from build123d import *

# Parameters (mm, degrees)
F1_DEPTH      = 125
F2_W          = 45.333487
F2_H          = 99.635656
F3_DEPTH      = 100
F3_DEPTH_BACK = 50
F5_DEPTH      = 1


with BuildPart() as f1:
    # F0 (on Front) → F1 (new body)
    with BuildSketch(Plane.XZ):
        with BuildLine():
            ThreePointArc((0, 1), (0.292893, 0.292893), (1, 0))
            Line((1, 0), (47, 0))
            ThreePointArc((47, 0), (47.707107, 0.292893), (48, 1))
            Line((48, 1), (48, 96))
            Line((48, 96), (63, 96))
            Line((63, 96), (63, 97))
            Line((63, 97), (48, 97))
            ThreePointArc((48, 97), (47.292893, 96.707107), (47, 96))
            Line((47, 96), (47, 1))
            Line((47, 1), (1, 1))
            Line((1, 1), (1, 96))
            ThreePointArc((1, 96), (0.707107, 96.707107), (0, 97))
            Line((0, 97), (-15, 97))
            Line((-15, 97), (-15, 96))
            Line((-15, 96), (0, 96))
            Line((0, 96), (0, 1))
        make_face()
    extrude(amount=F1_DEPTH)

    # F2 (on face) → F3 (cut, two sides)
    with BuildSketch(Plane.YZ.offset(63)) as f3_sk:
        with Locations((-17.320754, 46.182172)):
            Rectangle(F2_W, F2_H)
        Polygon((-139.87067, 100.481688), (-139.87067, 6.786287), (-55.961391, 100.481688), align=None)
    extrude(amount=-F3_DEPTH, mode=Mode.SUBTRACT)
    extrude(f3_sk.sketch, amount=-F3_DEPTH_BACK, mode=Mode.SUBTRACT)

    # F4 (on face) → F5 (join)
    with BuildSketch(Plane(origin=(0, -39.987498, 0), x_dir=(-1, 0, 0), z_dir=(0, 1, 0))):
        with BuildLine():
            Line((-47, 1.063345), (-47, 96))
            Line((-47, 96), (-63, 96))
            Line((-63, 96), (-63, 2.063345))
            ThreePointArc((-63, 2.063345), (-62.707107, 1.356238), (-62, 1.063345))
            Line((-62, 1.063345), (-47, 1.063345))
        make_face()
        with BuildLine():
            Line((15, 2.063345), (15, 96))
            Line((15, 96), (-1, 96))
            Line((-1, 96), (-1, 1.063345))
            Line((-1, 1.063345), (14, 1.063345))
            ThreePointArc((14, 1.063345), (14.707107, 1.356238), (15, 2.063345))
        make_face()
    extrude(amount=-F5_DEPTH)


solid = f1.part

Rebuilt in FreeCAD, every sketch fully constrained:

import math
import FreeCAD as App
import Part
import Sketcher
from FreeCAD import Vector

doc = App.newDocument("Part")
body = doc.addObject("PartDesign::Body", "Body")

sketch1 = body.newObject("Sketcher::SketchObject", "Sketch")
sketch1.AttachmentSupport = (doc.getObject("XZ_Plane"), [""])
sketch1.MapMode = "FlatFace"
sketch1.addGeometry(Part.ArcOfCircle(Part.Circle(Vector(1, 1, 0), Vector(0, 0, 1), 1), math.radians(180), math.radians(270)), False)
sketch1.addGeometry(Part.LineSegment(Vector(1, 0, 0), Vector(47, 0, 0)), False)
sketch1.addGeometry(Part.ArcOfCircle(Part.Circle(Vector(47, 1, 0), Vector(0, 0, 1), 1), math.radians(-90), math.radians(0)), False)
sketch1.addGeometry(Part.LineSegment(Vector(48, 1, 0), Vector(48, 96, 0)), False)
sketch1.addGeometry(Part.LineSegment(Vector(48, 96, 0), Vector(63, 96, 0)), False)
sketch1.addGeometry(Part.LineSegment(Vector(63, 96, 0), Vector(63, 97, 0)), False)
sketch1.addGeometry(Part.LineSegment(Vector(63, 97, 0), Vector(48, 97, 0)), False)
sketch1.addGeometry(Part.ArcOfCircle(Part.Circle(Vector(48, 96, 0), Vector(0, 0, 1), 1), math.radians(90), math.radians(180)), False)
sketch1.addGeometry(Part.LineSegment(Vector(47, 96, 0), Vector(47, 1, 0)), False)
sketch1.addGeometry(Part.LineSegment(Vector(47, 1, 0), Vector(1, 1, 0)), False)
sketch1.addGeometry(Part.LineSegment(Vector(1, 1, 0), Vector(1, 96, 0)), False)
sketch1.addGeometry(Part.ArcOfCircle(Part.Circle(Vector(0, 96, 0), Vector(0, 0, 1), 1), math.radians(0), math.radians(90)), False)
sketch1.addGeometry(Part.LineSegment(Vector(0, 97, 0), Vector(-15, 97, 0)), False)
sketch1.addGeometry(Part.LineSegment(Vector(-15, 97, 0), Vector(-15, 96, 0)), False)
sketch1.addGeometry(Part.LineSegment(Vector(-15, 96, 0), Vector(0, 96, 0)), False)
sketch1.addGeometry(Part.LineSegment(Vector(0, 96, 0), Vector(0, 1, 0)), False)
sketch1.addConstraint(Sketcher.Constraint("Tangent", 0, 2, 1, 1))
sketch1.addConstraint(Sketcher.Constraint("Tangent", 1, 2, 2, 1))
sketch1.addConstraint(Sketcher.Constraint("Tangent", 2, 2, 3, 1))
sketch1.addConstraint(Sketcher.Constraint("Coincident", 3, 2, 4, 1))
sketch1.addConstraint(Sketcher.Constraint("Coincident", 4, 2, 5, 1))
sketch1.addConstraint(Sketcher.Constraint("Coincident", 5, 2, 6, 1))
sketch1.addConstraint(Sketcher.Constraint("Tangent", 6, 2, 7, 1))
sketch1.addConstraint(Sketcher.Constraint("Tangent", 7, 2, 8, 1))
sketch1.addConstraint(Sketcher.Constraint("Coincident", 8, 2, 9, 1))
sketch1.addConstraint(Sketcher.Constraint("Coincident", 9, 2, 10, 1))
sketch1.addConstraint(Sketcher.Constraint("Tangent", 10, 2, 11, 1))
sketch1.addConstraint(Sketcher.Constraint("Tangent", 11, 2, 12, 1))
sketch1.addConstraint(Sketcher.Constraint("Coincident", 12, 2, 13, 1))
sketch1.addConstraint(Sketcher.Constraint("Coincident", 13, 2, 14, 1))
sketch1.addConstraint(Sketcher.Constraint("Coincident", 14, 2, 15, 1))
sketch1.addConstraint(Sketcher.Constraint("Tangent", 15, 2, 0, 1))
sketch1.addConstraint(Sketcher.Constraint("Horizontal", 1))
sketch1.addConstraint(Sketcher.Constraint("Vertical", 3))
sketch1.addConstraint(Sketcher.Constraint("Horizontal", 4))
sketch1.addConstraint(Sketcher.Constraint("Vertical", 5))
sketch1.addConstraint(Sketcher.Constraint("Horizontal", 6))
sketch1.addConstraint(Sketcher.Constraint("Vertical", 8))
sketch1.addConstraint(Sketcher.Constraint("Horizontal", 9))
sketch1.addConstraint(Sketcher.Constraint("Vertical", 10))
sketch1.addConstraint(Sketcher.Constraint("Horizontal", 12))
sketch1.addConstraint(Sketcher.Constraint("Vertical", 13))
sketch1.addConstraint(Sketcher.Constraint("Horizontal", 14))
sketch1.addConstraint(Sketcher.Constraint("Vertical", 15))
sketch1.addConstraint(Sketcher.Constraint("Coincident", 3, 2, 7, 3))
sketch1.addConstraint(Sketcher.Constraint("Coincident", 8, 2, 2, 3))
sketch1.addConstraint(Sketcher.Constraint("Coincident", 9, 2, 0, 3))
sketch1.addConstraint(Sketcher.Constraint("Coincident", 14, 2, 11, 3))
sketch1.addConstraint(Sketcher.Constraint("PointOnObject", 11, 3, -2))
sketch1.addConstraint(Sketcher.Constraint("PointOnObject", 0, 2, -1))
sketch1.addConstraint(Sketcher.Constraint("Horizontal", 7, 3, 11, 3))
sketch1.addConstraint(Sketcher.Constraint("Equal", 6, 12))
sketch1.addConstraint(Sketcher.Constraint("Radius", 0, 0.999999))
sketch1.addConstraint(Sketcher.Constraint("DistanceX", 1, 1, 1, 2, 46.0))
sketch1.addConstraint(Sketcher.Constraint("DistanceX", 4, 1, 4, 2, 15.0))
sketch1.addConstraint(Sketcher.Constraint("DistanceY", 3, 1, 3, 2, 95.0))
pad1 = body.newObject("PartDesign::Pad", "Pad")
pad1.Profile = sketch1
pad1.Length = 125

sketch2 = body.newObject("Sketcher::SketchObject", "Sketch001")
sketch2.AttachmentSupport = (doc.getObject("YZ_Plane"), [""])
sketch2.MapMode = "FlatFace"
sketch2.AttachmentOffset = App.Placement(Vector(0, 0, 63), App.Rotation())
sketch2.addGeometry(Part.LineSegment(Vector(-40, 96, 0), Vector(-40, -4, 0)), False)
sketch2.addGeometry(Part.LineSegment(Vector(-40, -4, 0), Vector(5, -4, 0)), False)
sketch2.addGeometry(Part.LineSegment(Vector(5, -4, 0), Vector(5, 96, 0)), False)
sketch2.addGeometry(Part.LineSegment(Vector(5, 96, 0), Vector(-40, 96, 0)), False)
sketch2.addGeometry(Part.LineSegment(Vector(-140, 100, 0), Vector(-140, 7, 0)), False)
sketch2.addGeometry(Part.LineSegment(Vector(-140, 7, 0), Vector(-56, 100, 0)), False)
sketch2.addGeometry(Part.LineSegment(Vector(-56, 100, 0), Vector(-140, 100, 0)), False)
sketch2.addConstraint(Sketcher.Constraint("Coincident", 0, 2, 1, 1))
sketch2.addConstraint(Sketcher.Constraint("Coincident", 1, 2, 2, 1))
sketch2.addConstraint(Sketcher.Constraint("Coincident", 2, 2, 3, 1))
sketch2.addConstraint(Sketcher.Constraint("Coincident", 3, 2, 0, 1))
sketch2.addConstraint(Sketcher.Constraint("Coincident", 4, 2, 5, 1))
sketch2.addConstraint(Sketcher.Constraint("Coincident", 5, 2, 6, 1))
sketch2.addConstraint(Sketcher.Constraint("Coincident", 6, 2, 4, 1))
sketch2.addConstraint(Sketcher.Constraint("Vertical", 0))
sketch2.addConstraint(Sketcher.Constraint("Horizontal", 1))
sketch2.addConstraint(Sketcher.Constraint("Vertical", 2))
sketch2.addConstraint(Sketcher.Constraint("Horizontal", 3))
sketch2.addConstraint(Sketcher.Constraint("Vertical", 4))
sketch2.addConstraint(Sketcher.Constraint("Horizontal", 6))
sketch2.addConstraint(Sketcher.Constraint("DistanceY", -1, 1, 2, 2, 96.0))
sketch2.addConstraint(Sketcher.Constraint("DistanceY", 4, 2, 4, 1, 93.695401))
sketch2.addConstraint(Sketcher.Constraint("DistanceX", 6, 2, 6, 1, 83.909279))
sketch2.addConstraint(Sketcher.Constraint("DistanceX", 1, 1, 1, 2, 45.333487))
sketch2.addConstraint(Sketcher.Constraint("DistanceY", 0, 2, 0, 1, 99.635656))
sketch2.addConstraint(Sketcher.Constraint("DistanceX", -1, 1, 1, 2, 5.345989))
sketch2.addConstraint(Sketcher.Constraint("DistanceX", 4, 2, -1, 1, 139.87067))
sketch2.addConstraint(Sketcher.Constraint("DistanceY", -1, 1, 5, 2, 100.481688))
pocket1 = body.newObject("PartDesign::Pocket", "Pocket")
pocket1.Profile = sketch2
pocket1.Length = 100
pocket2 = body.newObject("PartDesign::Pocket", "Pocket001")
pocket2.Profile = sketch2
pocket2.Length = 50

sketch3 = body.newObject("Sketcher::SketchObject", "Sketch002")
sketch3.AttachmentSupport = (doc.getObject("XZ_Plane"), [""])
sketch3.MapMode = "FlatFace"
sketch3.AttachmentOffset = App.Placement(Vector(0, 0, 39.987498), App.Rotation())
sketch3.addGeometry(Part.LineSegment(Vector(47, 1.1, 0), Vector(47, 96, 0)), False)
sketch3.addGeometry(Part.LineSegment(Vector(47, 96, 0), Vector(63, 96, 0)), False)
sketch3.addGeometry(Part.LineSegment(Vector(63, 96, 0), Vector(63, 2.1, 0)), False)
sketch3.addGeometry(Part.ArcOfCircle(Part.Circle(Vector(62, 2.1, 0), Vector(0, 0, 1), 1), math.radians(-90), math.radians(0)), False)
sketch3.addGeometry(Part.LineSegment(Vector(62, 1.1, 0), Vector(47, 1.1, 0)), False)
sketch3.addGeometry(Part.LineSegment(Vector(-15, 2.1, 0), Vector(-15, 96, 0)), False)
sketch3.addGeometry(Part.LineSegment(Vector(-15, 96, 0), Vector(1, 96, 0)), False)
sketch3.addGeometry(Part.LineSegment(Vector(1, 96, 0), Vector(1, 1.1, 0)), False)
sketch3.addGeometry(Part.LineSegment(Vector(1, 1.1, 0), Vector(-14, 1.1, 0)), False)
sketch3.addGeometry(Part.ArcOfCircle(Part.Circle(Vector(-14, 2.1, 0), Vector(0, 0, 1), 1), math.radians(180), math.radians(270)), False)
sketch3.addConstraint(Sketcher.Constraint("Coincident", 0, 2, 1, 1))
sketch3.addConstraint(Sketcher.Constraint("Coincident", 1, 2, 2, 1))
sketch3.addConstraint(Sketcher.Constraint("Tangent", 2, 2, 3, 2))
sketch3.addConstraint(Sketcher.Constraint("Tangent", 3, 1, 4, 1))
sketch3.addConstraint(Sketcher.Constraint("Coincident", 4, 2, 0, 1))
sketch3.addConstraint(Sketcher.Constraint("Coincident", 5, 2, 6, 1))
sketch3.addConstraint(Sketcher.Constraint("Coincident", 6, 2, 7, 1))
sketch3.addConstraint(Sketcher.Constraint("Coincident", 7, 2, 8, 1))
sketch3.addConstraint(Sketcher.Constraint("Tangent", 8, 2, 9, 2))
sketch3.addConstraint(Sketcher.Constraint("Tangent", 9, 1, 5, 1))
sketch3.addConstraint(Sketcher.Constraint("Vertical", 0))
sketch3.addConstraint(Sketcher.Constraint("Horizontal", 1))
sketch3.addConstraint(Sketcher.Constraint("Vertical", 2))
sketch3.addConstraint(Sketcher.Constraint("Horizontal", 4))
sketch3.addConstraint(Sketcher.Constraint("Vertical", 5))
sketch3.addConstraint(Sketcher.Constraint("Horizontal", 6))
sketch3.addConstraint(Sketcher.Constraint("Vertical", 7))
sketch3.addConstraint(Sketcher.Constraint("Horizontal", 8))
sketch3.addConstraint(Sketcher.Constraint("Equal", 3, 9))
sketch3.addConstraint(Sketcher.Constraint("Horizontal", 3, 3, 9, 3))
sketch3.addConstraint(Sketcher.Constraint("Horizontal", 1, 2, 5, 2))
sketch3.addConstraint(Sketcher.Constraint("Equal", 1, 6))
sketch3.addConstraint(Sketcher.Constraint("Radius", 3, 0.999999))
sketch3.addConstraint(Sketcher.Constraint("DistanceX", 1, 1, 1, 2, 16.0))
sketch3.addConstraint(Sketcher.Constraint("DistanceX", -1, 1, 3, 3, 62.000001))
sketch3.addConstraint(Sketcher.Constraint("DistanceX", 9, 3, -1, 1, 14.000001))
sketch3.addConstraint(Sketcher.Constraint("DistanceY", -1, 1, 0, 2, 96.0))
sketch3.addConstraint(Sketcher.Constraint("DistanceY", 0, 1, 0, 2, 94.936655))
pad2 = body.newObject("PartDesign::Pad", "Pad001")
pad2.Profile = sketch3
pad2.Length = 1

doc.recompute()
